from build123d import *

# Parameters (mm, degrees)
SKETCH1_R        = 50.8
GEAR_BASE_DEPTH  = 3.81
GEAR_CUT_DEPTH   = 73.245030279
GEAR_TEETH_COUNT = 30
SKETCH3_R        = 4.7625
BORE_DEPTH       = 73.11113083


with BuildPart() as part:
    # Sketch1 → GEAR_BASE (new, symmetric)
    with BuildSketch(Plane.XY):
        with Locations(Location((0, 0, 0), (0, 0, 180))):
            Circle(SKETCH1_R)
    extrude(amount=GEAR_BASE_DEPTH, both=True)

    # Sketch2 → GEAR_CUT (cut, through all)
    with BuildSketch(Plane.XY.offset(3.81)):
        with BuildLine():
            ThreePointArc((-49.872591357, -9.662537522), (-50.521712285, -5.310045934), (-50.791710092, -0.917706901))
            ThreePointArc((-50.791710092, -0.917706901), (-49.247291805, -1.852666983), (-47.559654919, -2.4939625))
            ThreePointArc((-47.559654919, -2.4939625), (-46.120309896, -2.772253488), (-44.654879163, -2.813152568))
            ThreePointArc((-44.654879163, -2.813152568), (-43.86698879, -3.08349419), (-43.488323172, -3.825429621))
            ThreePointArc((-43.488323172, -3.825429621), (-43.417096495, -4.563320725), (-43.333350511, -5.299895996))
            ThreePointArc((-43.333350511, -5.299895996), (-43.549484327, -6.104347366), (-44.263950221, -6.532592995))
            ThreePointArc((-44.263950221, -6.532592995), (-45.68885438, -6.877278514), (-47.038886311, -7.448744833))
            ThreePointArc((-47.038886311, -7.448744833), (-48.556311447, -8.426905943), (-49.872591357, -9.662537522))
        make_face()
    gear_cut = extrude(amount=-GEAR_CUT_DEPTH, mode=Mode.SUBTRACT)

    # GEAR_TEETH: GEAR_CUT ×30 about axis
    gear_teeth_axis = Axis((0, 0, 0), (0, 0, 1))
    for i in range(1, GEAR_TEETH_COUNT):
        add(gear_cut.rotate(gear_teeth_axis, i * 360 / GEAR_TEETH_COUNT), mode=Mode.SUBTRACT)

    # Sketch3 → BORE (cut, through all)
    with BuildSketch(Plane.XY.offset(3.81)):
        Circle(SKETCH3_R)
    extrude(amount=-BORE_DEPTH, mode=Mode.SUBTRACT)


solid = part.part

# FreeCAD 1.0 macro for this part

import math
import FreeCAD as App
import Part
import Sketcher

V = App.Vector
Q = App.Units.Quantity

doc = App.newDocument("Part")
body = doc.addObject("PartDesign::Body", "Body")

# Sketch on XY plane
sketch1 = body.newObject("Sketcher::SketchObject", "Sketch")
sketch1.AttachmentSupport = (doc.getObject("XY_Plane"), [""])
sketch1.MapMode = "FlatFace"
sketch1.addGeometry(Part.Circle(V(0, 0, 0), V(0, 0, 1), 51), False)
sketch1.addConstraint([
    Sketcher.Constraint("Coincident", 0, 3, -1, 1),
    Sketcher.Constraint("Diameter", 0, Q("4 in")),
])
pad1 = body.newObject("PartDesign::Pad", "Pad")
pad1.Profile = sketch1
pad1.Length = Q("0.3 in")
pad1.Midplane = True

# Sketch on XY plane
sketch2 = body.newObject("Sketcher::SketchObject", "Sketch001")
sketch2.AttachmentSupport = (doc.getObject("XY_Plane"), [""])
sketch2.MapMode = "FlatFace"
sketch2.AttachmentOffset = App.Placement(V(0, 0, 0.15 * 25.4), App.Rotation())
sketch2.addGeometry([
    Part.ArcOfCircle(Part.Circle(V(0, 0, 0), V(0, 0, 1), 50.8), math.radians(-178.96), math.radians(-169.04)),  # 0
    Part.ArcOfCircle(Part.Circle(V(-42.4, -16.3, 0), V(0, 0, 1), 10), math.radians(118), math.radians(138)),  # 1
    Part.ArcOfCircle(Part.Circle(V(-42.9, -15.4, 0), V(0, 0, 1), 9), math.radians(98.93), math.radians(117.61)),  # 2
    Part.ArcOfCircle(Part.Circle(V(-44.4, -5.4, 0), V(0, 0, 1), 1.1), math.radians(-81), math.radians(7)),  # 3
    Part.ArcOfCircle(Part.Circle(V(0, 0, 0), V(0, 0, 1), 43.7), math.radians(-174.97), math.radians(-173.03)),  # 4
    Part.ArcOfCircle(Part.Circle(V(-44.6, -3.9, 0), V(0, 0, 1), 1.1), math.radians(5), math.radians(93)),  # 5
    Part.ArcOfCircle(Part.Circle(V(-45.1, 6.2, 0), V(0, 0, 1), 9), math.radians(-105.61), math.radians(-86.93)),  # 6
    Part.ArcOfCircle(Part.Circle(V(-44.9, 7.1, 0), V(0, 0, 1), 10), math.radians(-126), math.radians(-106)),  # 7
], False)
sketch2.addConstraint([
    Sketcher.Constraint("Coincident", 0, 2, 1, 2),
    Sketcher.Constraint("Tangent", 1, 1, 2, 2),
    Sketcher.Constraint("Tangent", 2, 1, 3, 1),
    Sketcher.Constraint("Tangent", 3, 2, 4, 2),
    Sketcher.Constraint("Tangent", 4, 1, 5, 1),
    Sketcher.Constraint("Tangent", 5, 2, 6, 2),
    Sketcher.Constraint("Tangent", 6, 1, 7, 2),
    Sketcher.Constraint("Coincident", 7, 1, 0, 1),
    Sketcher.Constraint("Coincident", 0, 3, -1, 1),
    Sketcher.Constraint("Coincident", 4, 3, -1, 1),
    Sketcher.Constraint("Equal", 3, 5),
    Sketcher.Constraint("Equal", 2, 6),
    Sketcher.Constraint("Equal", 1, 7),
    Sketcher.Constraint("Radius", 0, Q("2 in")),
    Sketcher.Constraint("Radius", 4, Q("1.71875 in")),
    Sketcher.Constraint("Radius", 1, Q("9.97585 mm")),
    Sketcher.Constraint("Radius", 3, Q("1.11125 mm")),
    Sketcher.Constraint("DistanceX", 2, 3, -1, 1, Q("1.6877 in")),
    Sketcher.Constraint("Radius", 2, Q("8.999048 mm")),
    Sketcher.Constraint("DistanceX", 5, 3, -1, 1, Q("44.595299 mm")),
    Sketcher.Constraint("DistanceX", 3, 3, 2, 3, Q("1.5688 mm")),
    Sketcher.Constraint("DistanceY", 2, 3, 1, 1, Q("7.9739 mm")),
    Sketcher.Constraint("DistanceX", 6, 3, -1, 1, Q("45.13737 mm")),
    Sketcher.Constraint("DistanceY", 6, 3, 7, 3, Q("0.940751 mm")),
])
pocket1 = body.newObject("PartDesign::Pocket", "Pocket")
pocket1.Profile = sketch2
pocket1.Type = "ThroughAll"
doc.recompute()

polarpattern = body.newObject("PartDesign::PolarPattern", "PolarPattern")
polarpattern.Originals = [pocket1]
polarpattern.Axis = (doc.getObject("Z_Axis"), [""])
polarpattern.Angle = 360
polarpattern.Occurrences = 30
body.Tip = polarpattern

# Sketch on XY plane
sketch3 = body.newObject("Sketcher::SketchObject", "Sketch002")
sketch3.AttachmentSupport = (doc.getObject("XY_Plane"), [""])
sketch3.MapMode = "FlatFace"
sketch3.AttachmentOffset = App.Placement(V(0, 0, 0.15 * 25.4), App.Rotation())
sketch3.addGeometry(Part.Circle(V(0, 0, 0), V(0, 0, 1), 4.8), False)
sketch3.addConstraint([
    Sketcher.Constraint("Coincident", 0, 3, -1, 1),
    Sketcher.Constraint("Diameter", 0, Q("0.375 in")),
])
pocket2 = body.newObject("PartDesign::Pocket", "Pocket001")
pocket2.Profile = sketch3
pocket2.Type = "ThroughAll"

doc.recompute()
